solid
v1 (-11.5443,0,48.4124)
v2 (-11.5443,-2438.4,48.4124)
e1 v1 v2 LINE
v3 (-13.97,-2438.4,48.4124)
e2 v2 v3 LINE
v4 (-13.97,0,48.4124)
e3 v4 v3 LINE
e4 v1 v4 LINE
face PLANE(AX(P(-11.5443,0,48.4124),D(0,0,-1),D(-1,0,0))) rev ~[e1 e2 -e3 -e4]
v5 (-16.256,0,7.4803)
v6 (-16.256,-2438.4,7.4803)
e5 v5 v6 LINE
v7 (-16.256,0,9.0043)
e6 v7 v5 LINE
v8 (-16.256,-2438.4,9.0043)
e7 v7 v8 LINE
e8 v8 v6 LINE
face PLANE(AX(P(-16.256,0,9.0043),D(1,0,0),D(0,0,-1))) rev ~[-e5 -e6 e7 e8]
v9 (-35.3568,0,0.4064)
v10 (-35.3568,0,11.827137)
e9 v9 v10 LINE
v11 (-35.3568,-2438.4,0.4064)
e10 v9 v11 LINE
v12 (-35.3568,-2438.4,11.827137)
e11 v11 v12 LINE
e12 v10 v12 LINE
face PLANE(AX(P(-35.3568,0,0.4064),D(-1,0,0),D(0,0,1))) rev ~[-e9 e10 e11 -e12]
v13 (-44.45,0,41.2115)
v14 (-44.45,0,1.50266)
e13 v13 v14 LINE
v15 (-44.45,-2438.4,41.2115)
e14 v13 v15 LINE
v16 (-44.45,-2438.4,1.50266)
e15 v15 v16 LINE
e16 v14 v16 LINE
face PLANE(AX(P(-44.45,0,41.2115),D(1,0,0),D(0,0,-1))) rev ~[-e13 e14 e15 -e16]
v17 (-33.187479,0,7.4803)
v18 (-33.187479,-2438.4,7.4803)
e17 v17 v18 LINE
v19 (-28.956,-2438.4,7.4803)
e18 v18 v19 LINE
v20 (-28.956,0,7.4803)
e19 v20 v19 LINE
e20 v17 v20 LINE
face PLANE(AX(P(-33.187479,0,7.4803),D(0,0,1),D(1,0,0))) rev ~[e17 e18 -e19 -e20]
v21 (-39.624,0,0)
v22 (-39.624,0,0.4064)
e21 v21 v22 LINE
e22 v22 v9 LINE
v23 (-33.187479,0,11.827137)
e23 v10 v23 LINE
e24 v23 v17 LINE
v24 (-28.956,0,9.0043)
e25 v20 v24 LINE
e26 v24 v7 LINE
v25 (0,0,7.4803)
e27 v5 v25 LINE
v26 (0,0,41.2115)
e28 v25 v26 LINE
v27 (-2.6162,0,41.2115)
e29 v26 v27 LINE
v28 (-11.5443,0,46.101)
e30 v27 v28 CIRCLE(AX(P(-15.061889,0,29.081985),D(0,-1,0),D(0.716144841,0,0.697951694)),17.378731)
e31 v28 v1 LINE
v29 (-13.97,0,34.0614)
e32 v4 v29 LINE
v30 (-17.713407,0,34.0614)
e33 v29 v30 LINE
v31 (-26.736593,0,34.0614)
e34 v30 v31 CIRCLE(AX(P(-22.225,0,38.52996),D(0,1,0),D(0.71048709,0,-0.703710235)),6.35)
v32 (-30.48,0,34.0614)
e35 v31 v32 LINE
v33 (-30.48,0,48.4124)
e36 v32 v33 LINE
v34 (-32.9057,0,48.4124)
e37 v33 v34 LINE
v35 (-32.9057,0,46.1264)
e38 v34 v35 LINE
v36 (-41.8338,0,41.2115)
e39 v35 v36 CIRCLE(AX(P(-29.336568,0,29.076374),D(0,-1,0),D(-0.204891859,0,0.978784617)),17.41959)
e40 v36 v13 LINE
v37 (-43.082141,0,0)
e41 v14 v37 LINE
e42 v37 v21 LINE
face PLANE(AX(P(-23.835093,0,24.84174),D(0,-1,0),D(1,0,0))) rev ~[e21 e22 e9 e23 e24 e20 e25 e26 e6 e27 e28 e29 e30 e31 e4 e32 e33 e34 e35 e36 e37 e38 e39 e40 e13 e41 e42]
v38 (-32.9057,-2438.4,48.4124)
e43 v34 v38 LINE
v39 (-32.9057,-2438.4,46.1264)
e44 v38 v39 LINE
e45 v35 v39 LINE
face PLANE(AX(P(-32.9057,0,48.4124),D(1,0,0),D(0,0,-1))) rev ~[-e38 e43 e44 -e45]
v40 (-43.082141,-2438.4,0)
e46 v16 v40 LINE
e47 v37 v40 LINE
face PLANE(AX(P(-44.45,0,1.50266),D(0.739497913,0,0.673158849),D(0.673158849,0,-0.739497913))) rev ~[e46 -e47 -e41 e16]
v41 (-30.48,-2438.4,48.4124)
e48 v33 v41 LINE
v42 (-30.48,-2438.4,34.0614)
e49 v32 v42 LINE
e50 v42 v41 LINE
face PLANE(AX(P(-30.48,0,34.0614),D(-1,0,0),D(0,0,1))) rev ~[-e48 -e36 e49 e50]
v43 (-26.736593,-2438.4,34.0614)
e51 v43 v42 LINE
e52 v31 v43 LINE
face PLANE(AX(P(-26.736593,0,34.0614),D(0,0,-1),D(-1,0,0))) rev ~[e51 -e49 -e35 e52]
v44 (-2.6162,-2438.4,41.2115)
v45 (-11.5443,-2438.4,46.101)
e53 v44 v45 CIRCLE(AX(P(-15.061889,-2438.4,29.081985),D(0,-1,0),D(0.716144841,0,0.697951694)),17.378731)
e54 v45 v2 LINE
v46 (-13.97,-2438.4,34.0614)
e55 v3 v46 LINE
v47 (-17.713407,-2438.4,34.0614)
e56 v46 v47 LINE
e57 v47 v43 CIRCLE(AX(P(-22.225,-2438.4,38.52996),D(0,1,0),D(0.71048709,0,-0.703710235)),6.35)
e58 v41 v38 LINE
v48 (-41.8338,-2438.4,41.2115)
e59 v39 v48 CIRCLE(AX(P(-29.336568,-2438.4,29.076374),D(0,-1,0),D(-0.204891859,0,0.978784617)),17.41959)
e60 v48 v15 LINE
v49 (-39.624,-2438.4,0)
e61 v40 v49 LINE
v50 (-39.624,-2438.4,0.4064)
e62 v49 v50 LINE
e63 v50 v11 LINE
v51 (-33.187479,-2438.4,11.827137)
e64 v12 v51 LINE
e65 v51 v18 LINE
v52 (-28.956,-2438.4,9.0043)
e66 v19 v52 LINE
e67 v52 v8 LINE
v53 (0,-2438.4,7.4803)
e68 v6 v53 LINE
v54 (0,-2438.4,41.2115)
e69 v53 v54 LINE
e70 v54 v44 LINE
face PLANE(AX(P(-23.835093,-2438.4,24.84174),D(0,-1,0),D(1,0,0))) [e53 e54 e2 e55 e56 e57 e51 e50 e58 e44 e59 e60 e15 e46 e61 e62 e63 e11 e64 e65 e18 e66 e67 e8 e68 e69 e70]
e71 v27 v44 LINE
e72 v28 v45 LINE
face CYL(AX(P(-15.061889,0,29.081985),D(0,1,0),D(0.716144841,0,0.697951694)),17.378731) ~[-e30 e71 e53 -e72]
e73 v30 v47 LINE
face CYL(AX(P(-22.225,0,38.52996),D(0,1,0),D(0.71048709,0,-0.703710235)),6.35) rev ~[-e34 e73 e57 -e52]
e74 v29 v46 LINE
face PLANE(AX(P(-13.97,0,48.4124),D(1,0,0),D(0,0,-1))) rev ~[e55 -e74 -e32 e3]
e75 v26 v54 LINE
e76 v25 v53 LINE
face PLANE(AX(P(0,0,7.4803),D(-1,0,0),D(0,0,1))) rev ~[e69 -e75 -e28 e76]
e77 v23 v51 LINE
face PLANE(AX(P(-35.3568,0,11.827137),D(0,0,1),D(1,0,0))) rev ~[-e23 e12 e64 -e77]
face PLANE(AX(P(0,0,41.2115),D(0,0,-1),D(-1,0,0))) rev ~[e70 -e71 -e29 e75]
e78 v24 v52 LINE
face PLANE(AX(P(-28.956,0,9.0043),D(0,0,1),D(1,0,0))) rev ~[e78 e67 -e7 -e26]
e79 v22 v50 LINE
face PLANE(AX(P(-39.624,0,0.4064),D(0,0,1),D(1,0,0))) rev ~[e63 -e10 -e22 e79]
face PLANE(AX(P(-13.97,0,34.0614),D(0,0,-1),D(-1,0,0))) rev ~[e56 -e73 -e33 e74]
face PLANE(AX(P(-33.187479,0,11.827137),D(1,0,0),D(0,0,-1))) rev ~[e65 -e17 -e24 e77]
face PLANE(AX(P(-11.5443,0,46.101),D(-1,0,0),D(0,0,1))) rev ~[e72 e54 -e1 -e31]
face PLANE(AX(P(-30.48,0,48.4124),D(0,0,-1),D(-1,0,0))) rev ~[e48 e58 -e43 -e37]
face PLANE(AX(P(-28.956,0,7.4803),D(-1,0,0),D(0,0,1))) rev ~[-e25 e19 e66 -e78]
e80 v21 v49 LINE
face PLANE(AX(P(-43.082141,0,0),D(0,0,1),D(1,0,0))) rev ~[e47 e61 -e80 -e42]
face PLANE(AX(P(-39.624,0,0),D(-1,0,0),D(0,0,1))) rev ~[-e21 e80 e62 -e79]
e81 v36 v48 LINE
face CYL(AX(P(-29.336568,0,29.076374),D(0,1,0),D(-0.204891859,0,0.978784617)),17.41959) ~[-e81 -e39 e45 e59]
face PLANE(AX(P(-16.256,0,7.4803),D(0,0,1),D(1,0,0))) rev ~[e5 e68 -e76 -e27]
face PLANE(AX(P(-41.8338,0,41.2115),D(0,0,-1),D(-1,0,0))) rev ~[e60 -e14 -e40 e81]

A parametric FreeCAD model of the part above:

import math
import FreeCAD as App
import Part
import Sketcher
from FreeCAD import Vector
Q = App.Units.Quantity

doc = App.newDocument("Part")
body = doc.addObject("PartDesign::Body", "Body")

# Sketch on XZ plane
sketch1 = doc.addObject("Sketcher::SketchObject", "Sketch")
body.addObject(sketch1)
sketch1.AttachmentSupport = (doc.XZ_Plane, [""])
sketch1.MapMode = "FlatFace"
sketch1.addGeometry(Part.LineSegment(Vector(-43.08, 0, 0), Vector(-39.62, 0, 0)), False)
sketch1.addGeometry(Part.LineSegment(Vector(-39.62, 0, 0), Vector(-39.62, 0.41, 0)), False)
sketch1.addGeometry(Part.LineSegment(Vector(-39.62, 0.41, 0), Vector(-35.36, 0.41, 0)), False)
sketch1.addGeometry(Part.LineSegment(Vector(-35.36, 0.41, 0), Vector(-35.36, 11.83, 0)), False)
sketch1.addGeometry(Part.LineSegment(Vector(-35.36, 11.83, 0), Vector(-33.19, 11.83, 0)), False)
sketch1.addGeometry(Part.LineSegment(Vector(-33.19, 11.83, 0), Vector(-33.19, 7.48, 0)), False)
sketch1.addGeometry(Part.LineSegment(Vector(-33.19, 7.48, 0), Vector(-28.96, 7.48, 0)), False)
sketch1.addGeometry(Part.LineSegment(Vector(-28.96, 7.48, 0), Vector(-28.96, 9, 0)), False)
sketch1.addGeometry(Part.LineSegment(Vector(-28.96, 9, 0), Vector(-16.26, 9, 0)), False)
sketch1.addGeometry(Part.LineSegment(Vector(-16.26, 9, 0), Vector(-16.26, 7.48, 0)), False)
sketch1.addGeometry(Part.LineSegment(Vector(-16.26, 7.48, 0), Vector(0, 7.48, 0)), False)
sketch1.addGeometry(Part.LineSegment(Vector(0, 7.48, 0), Vector(0, 41.21, 0)), False)
sketch1.addGeometry(Part.LineSegment(Vector(0, 41.21, 0), Vector(-2.62, 41.21, 0)), False)
sketch1.addGeometry(Part.ArcOfCircle(Part.Circle(Vector(-15.06, 29.08, 0), Vector(0, 0, 1), 17.38), math.radians(44), math.radians(78)), False)
sketch1.addGeometry(Part.LineSegment(Vector(-11.54, 46.1, 0), Vector(-11.54, 48.41, 0)), False)
sketch1.addGeometry(Part.LineSegment(Vector(-11.54, 48.41, 0), Vector(-13.97, 48.41, 0)), False)
sketch1.addGeometry(Part.LineSegment(Vector(-13.97, 48.41, 0), Vector(-13.97, 34.06, 0)), False)
sketch1.addGeometry(Part.LineSegment(Vector(-13.97, 34.06, 0), Vector(-17.71, 34.06, 0)), False)
sketch1.addGeometry(Part.ArcOfCircle(Part.Circle(Vector(-22.23, 38.53, 0), Vector(0, 0, 1), 6.35), math.radians(-135), math.radians(-45)), False)
sketch1.addGeometry(Part.LineSegment(Vector(-26.74, 34.06, 0), Vector(-30.48, 34.06, 0)), False)
sketch1.addGeometry(Part.LineSegment(Vector(-30.48, 34.06, 0), Vector(-30.48, 48.41, 0)), False)
sketch1.addGeometry(Part.LineSegment(Vector(-30.48, 48.41, 0), Vector(-32.91, 48.41, 0)), False)
sketch1.addGeometry(Part.LineSegment(Vector(-32.91, 48.41, 0), Vector(-32.91, 46.13, 0)), False)
sketch1.addGeometry(Part.ArcOfCircle(Part.Circle(Vector(-29.34, 29.08, 0), Vector(0, 0, 1), 17.42), math.radians(102), math.radians(136)), False)
sketch1.addGeometry(Part.LineSegment(Vector(-41.83, 41.21, 0), Vector(-44.45, 41.21, 0)), False)
sketch1.addGeometry(Part.LineSegment(Vector(-44.45, 41.21, 0), Vector(-44.45, 1.5, 0)), False)
sketch1.addGeometry(Part.LineSegment(Vector(-44.45, 1.5, 0), Vector(-43.08, 0, 0)), False)
sketch1.addConstraint(Sketcher.Constraint("Coincident", 0, 2, 1, 1))
sketch1.addConstraint(Sketcher.Constraint("Coincident", 1, 2, 2, 1))
sketch1.addConstraint(Sketcher.Constraint("Coincident", 2, 2, 3, 1))
sketch1.addConstraint(Sketcher.Constraint("Coincident", 3, 2, 4, 1))
sketch1.addConstraint(Sketcher.Constraint("Coincident", 4, 2, 5, 1))
sketch1.addConstraint(Sketcher.Constraint("Coincident", 5, 2, 6, 1))
sketch1.addConstraint(Sketcher.Constraint("Coincident", 6, 2, 7, 1))
sketch1.addConstraint(Sketcher.Constraint("Coincident", 7, 2, 8, 1))
sketch1.addConstraint(Sketcher.Constraint("Coincident", 8, 2, 9, 1))
sketch1.addConstraint(Sketcher.Constraint("Coincident", 9, 2, 10, 1))
sketch1.addConstraint(Sketcher.Constraint("Coincident", 10, 2, 11, 1))
sketch1.addConstraint(Sketcher.Constraint("Coincident", 11, 2, 12, 1))
sketch1.addConstraint(Sketcher.Constraint("Coincident", 12, 2, 13, 1))
sketch1.addConstraint(Sketcher.Constraint("Coincident", 13, 2, 14, 1))
sketch1.addConstraint(Sketcher.Constraint("Coincident", 14, 2, 15, 1))
sketch1.addConstraint(Sketcher.Constraint("Coincident", 15, 2, 16, 1))
sketch1.addConstraint(Sketcher.Constraint("Coincident", 16, 2, 17, 1))
sketch1.addConstraint(Sketcher.Constraint("Coincident", 17, 2, 18, 2))
sketch1.addConstraint(Sketcher.Constraint("Coincident", 18, 1, 19, 1))
sketch1.addConstraint(Sketcher.Constraint("Coincident", 19, 2, 20, 1))
sketch1.addConstraint(Sketcher.Constraint("Coincident", 20, 2, 21, 1))
sketch1.addConstraint(Sketcher.Constraint("Coincident", 21, 2, 22, 1))
sketch1.addConstraint(Sketcher.Constraint("Coincident", 22, 2, 23, 1))
sketch1.addConstraint(Sketcher.Constraint("Coincident", 23, 2, 24, 1))
sketch1.addConstraint(Sketcher.Constraint("Coincident", 24, 2, 25, 1))
sketch1.addConstraint(Sketcher.Constraint("Coincident", 25, 2, 26, 1))
sketch1.addConstraint(Sketcher.Constraint("Coincident", 26, 2, 0, 1))
sketch1.addConstraint(Sketcher.Constraint("Horizontal", 0))
sketch1.addConstraint(Sketcher.Constraint("Vertical", 1))
sketch1.addConstraint(Sketcher.Constraint("Horizontal", 2))
sketch1.addConstraint(Sketcher.Constraint("Vertical", 3))
sketch1.addConstraint(Sketcher.Constraint("Horizontal", 4))
sketch1.addConstraint(Sketcher.Constraint("Vertical", 5))
sketch1.addConstraint(Sketcher.Constraint("Horizontal", 6))
sketch1.addConstraint(Sketcher.Constraint("Vertical", 7))
sketch1.addConstraint(Sketcher.Constraint("Horizontal", 8))
sketch1.addConstraint(Sketcher.Constraint("Vertical", 9))
sketch1.addConstraint(Sketcher.Constraint("Horizontal", 10))
sketch1.addConstraint(Sketcher.Constraint("Vertical", 11))
sketch1.addConstraint(Sketcher.Constraint("Horizontal", 12))
sketch1.addConstraint(Sketcher.Constraint("Vertical", 14))
sketch1.addConstraint(Sketcher.Constraint("Horizontal", 15))
sketch1.addConstraint(Sketcher.Constraint("Vertical", 16))
sketch1.addConstraint(Sketcher.Constraint("Horizontal", 17))
sketch1.addConstraint(Sketcher.Constraint("Horizontal", 19))
sketch1.addConstraint(Sketcher.Constraint("Vertical", 20))
sketch1.addConstraint(Sketcher.Constraint("Horizontal", 21))
sketch1.addConstraint(Sketcher.Constraint("Vertical", 22))
sketch1.addConstraint(Sketcher.Constraint("Horizontal", 24))
sketch1.addConstraint(Sketcher.Constraint("Vertical", 25))
sketch1.addConstraint(Sketcher.Constraint("PointOnObject", 0, 2, -1))
sketch1.addConstraint(Sketcher.Constraint("PointOnObject", 10, 2, -2))
sketch1.addConstraint(Sketcher.Constraint("Horizontal", 6, 2, 9, 2))
sketch1.addConstraint(Sketcher.Constraint("Horizontal", 17, 2, 18, 1))
sketch1.addConstraint(Sketcher.Constraint("Horizontal", 15, 2, 20, 2))
sketch1.addConstraint(Sketcher.Constraint("Horizontal", 12, 2, 23, 2))
sketch1.addConstraint(Sketcher.Constraint("Equal", 17, 19))
sketch1.addConstraint(Sketcher.Constraint("Equal", 15, 21))
sketch1.addConstraint(Sketcher.Constraint("Equal", 12, 24))
sketch1.addConstraint(Sketcher.Constraint("Radius", 18, Q("0.25 in")))
sketch1.addConstraint(Sketcher.Constraint("DistanceX", 8, 1, 8, 2, Q("0.5 in")))
sketch1.addConstraint(Sketcher.Constraint("DistanceX", 10, 1, 10, 2, Q("0.64 in")))
sketch1.addConstraint(Sketcher.Constraint("DistanceY", 7, 1, 7, 2, Q("0.06 in")))
sketch1.addConstraint(Sketcher.Constraint("DistanceY", 22, 2, 22, 1, Q("0.09 in")))
sketch1.addConstraint(Sketcher.Constraint("DistanceX", 19, 2, -1, 1, Q("1.2 in")))
sketch1.addConstraint(Sketcher.Constraint("Distance", 26, Q("0.08 in")))
sketch1.addConstraint(Sketcher.Constraint("DistanceX", 2, 1, 2, 2, Q("0.168 in")))
sketch1.addConstraint(Sketcher.Constraint("DistanceX", 12, 2, 12, 1, Q("0.103 in")))
sketch1.addConstraint(Sketcher.Constraint("DistanceY", 1, 1, 1, 2, Q("0.016 in")))
sketch1.addConstraint(Sketcher.Constraint("DistanceY", 11, 1, 11, 2, Q("1.328 in")))
sketch1.addConstraint(Sketcher.Constraint("DistanceY", 14, 1, 14, 2, Q("0.091 in")))
sketch1.addConstraint(Sketcher.Constraint("DistanceY", 16, 2, 16, 1, Q("0.565 in")))
sketch1.addConstraint(Sketcher.Constraint("DistanceX", 0, 2, -1, 1, Q("1.56 in")))
sketch1.addConstraint(Sketcher.Constraint("DistanceX", 15, 2, -1, 1, Q("0.55 in")))
sketch1.addConstraint(Sketcher.Constraint("DistanceX", 24, 2, -1, 1, Q("1.75 in")))
sketch1.addConstraint(Sketcher.Constraint("DistanceX", 15, 2, 15, 1, Q("0.0955 in")))
sketch1.addConstraint(Sketcher.Constraint("DistanceY", -1, 1, 13, 2, Q("1.815 in")))
sketch1.addConstraint(Sketcher.Constraint("Radius", 13, 17.378731))
sketch1.addConstraint(Sketcher.Constraint("Radius", 23, 17.41959))
sketch1.addConstraint(Sketcher.Constraint("DistanceY", -1, 1, 5, 2, Q("0.2945 in")))
sketch1.addConstraint(Sketcher.Constraint("DistanceX", 0, 1, 0, 2, 3.458141))
sketch1.addConstraint(Sketcher.Constraint("DistanceX", 4, 1, 4, 2, 2.169321))
sketch1.addConstraint(Sketcher.Constraint("DistanceX", 17, 2, 17, 1, 3.743407))
sketch1.addConstraint(Sketcher.Constraint("DistanceY", 3, 1, 3, 2, 11.420737))
pad1 = doc.addObject("PartDesign::Pad", "Pad")
body.addObject(pad1)
pad1.Profile = sketch1
pad1.Length = Q("96 in")

doc.recompute()
